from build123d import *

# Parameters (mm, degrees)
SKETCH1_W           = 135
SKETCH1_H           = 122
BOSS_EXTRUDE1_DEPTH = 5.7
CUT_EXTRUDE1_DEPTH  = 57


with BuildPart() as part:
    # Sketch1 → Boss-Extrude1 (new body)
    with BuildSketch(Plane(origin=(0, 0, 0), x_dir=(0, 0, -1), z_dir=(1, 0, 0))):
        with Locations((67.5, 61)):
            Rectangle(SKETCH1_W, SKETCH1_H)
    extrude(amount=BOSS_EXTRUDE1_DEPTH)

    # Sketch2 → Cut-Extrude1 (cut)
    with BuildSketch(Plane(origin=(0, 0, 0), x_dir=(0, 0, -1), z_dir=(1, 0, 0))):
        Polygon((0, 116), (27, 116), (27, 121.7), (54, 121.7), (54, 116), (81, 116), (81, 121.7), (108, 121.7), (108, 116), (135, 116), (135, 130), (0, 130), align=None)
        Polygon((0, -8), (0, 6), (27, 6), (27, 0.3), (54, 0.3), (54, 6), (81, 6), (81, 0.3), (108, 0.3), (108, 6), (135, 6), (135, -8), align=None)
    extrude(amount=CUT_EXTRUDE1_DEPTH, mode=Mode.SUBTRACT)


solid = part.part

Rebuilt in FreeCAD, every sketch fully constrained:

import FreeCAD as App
import Part
import Sketcher

V = App.Vector


def add_polygon(sketch, points):
    """Adds a closed chain of lines whose ends are joined by coincident constraints."""
    first, n = sketch.GeometryCount, len(points)
    for a, b in zip(points, points[1:] + points[:1]):
        sketch.addGeometry(Part.LineSegment(App.Vector(*a, 0), App.Vector(*b, 0)), False)
    for i in range(n):
        sketch.addConstraint(Sketcher.Constraint("Coincident", first + i, 2, first + (i + 1) % n, 1))

doc = App.newDocument("Part")
body = doc.addObject("PartDesign::Body", "Body")

# Sketch on YZ plane
sketch1 = doc.addObject("Sketcher::SketchObject", "Sketch")
body.addObject(sketch1)
sketch1.AttachmentSupport = (doc.YZ_Plane, [""])
sketch1.MapMode = "FlatFace"
add_polygon(sketch1, [(122, 0), (0, 0), (0, -135), (122, -135)])  # lines 0-3
sketch1.addConstraint([
    Sketcher.Constraint("Horizontal", 0),
    Sketcher.Constraint("Vertical", 1),
    Sketcher.Constraint("Horizontal", 2),
    Sketcher.Constraint("Vertical", 3),
    Sketcher.Constraint("Coincident", 0, 2, -1, 1),
    Sketcher.Constraint("DistanceX", 0, 2, 0, 1, 122.0),
    Sketcher.Constraint("DistanceY", 1, 2, 1, 1, 135.0),
])
pad1 = doc.addObject("PartDesign::Pad", "Pad")
body.addObject(pad1)
pad1.Profile = sketch1
pad1.Length = 5.7

# Sketch on YZ plane
sketch2 = doc.addObject("Sketcher::SketchObject", "Sketch001")
body.addObject(sketch2)
sketch2.AttachmentSupport = (doc.YZ_Plane, [""])
sketch2.MapMode = "FlatFace"
add_polygon(sketch2, [(116, 0), (116, -27), (121.7, -27), (121.7, -54), (116, -54), (116, -81), (121.7, -81), (121.7, -108), (116, -108), (116, -135), (130, -135), (130, 0)])  # lines 0-11
add_polygon(sketch2, [(6, 0), (-8, 0), (-8, -135), (6, -135), (6, -108), (0.3, -108), (0.3, -81), (6, -81), (6, -54), (0.3, -54), (0.3, -27), (6, -27)])  # lines 12-23
sketch2.addConstraint([
    Sketcher.Constraint("Vertical", 0),
    Sketcher.Constraint("Horizontal", 1),
    Sketcher.Constraint("Vertical", 2),
    Sketcher.Constraint("Horizontal", 3),
    Sketcher.Constraint("Vertical", 4),
    Sketcher.Constraint("Horizontal", 5),
    Sketcher.Constraint("Vertical", 6),
    Sketcher.Constraint("Horizontal", 7),
    Sketcher.Constraint("Vertical", 8),
    Sketcher.Constraint("Horizontal", 9),
    Sketcher.Constraint("Vertical", 10),
    Sketcher.Constraint("Horizontal", 11),
    Sketcher.Constraint("Horizontal", 12),
    Sketcher.Constraint("Vertical", 13),
    Sketcher.Constraint("Horizontal", 14),
    Sketcher.Constraint("Vertical", 15),
    Sketcher.Constraint("Horizontal", 16),
    Sketcher.Constraint("Vertical", 17),
    Sketcher.Constraint("Horizontal", 18),
    Sketcher.Constraint("Vertical", 19),
    Sketcher.Constraint("Horizontal", 20),
    Sketcher.Constraint("Vertical", 21),
    Sketcher.Constraint("Horizontal", 22),
    Sketcher.Constraint("Vertical", 23),
    Sketcher.Constraint("PointOnObject", 10, 2, -1),
    Sketcher.Constraint("PointOnObject", 12, 2, -1),
    Sketcher.Constraint("Horizontal", 9, 2, 13, 2),
    Sketcher.Constraint("Horizontal", 7, 2, 15, 2),
    Sketcher.Constraint("Horizontal", 5, 2, 17, 2),
    Sketcher.Constraint("Horizontal", 3, 2, 19, 2),
    Sketcher.Constraint("Horizontal", 1, 2, 21, 2),
    Sketcher.Constraint("Vertical", 0, 2, 3, 2),
    Sketcher.Constraint("Vertical", 2, 2, 5, 2),
    Sketcher.Constraint("Vertical", 4, 2, 7, 2),
    Sketcher.Constraint("Vertical", 15, 2, 18, 2),
    Sketcher.Constraint("Vertical", 17, 2, 20, 2),
    Sketcher.Constraint("Vertical", 19, 2, 22, 2),
    Sketcher.Constraint("Equal", 11, 12),
    Sketcher.Constraint("Equal", 7, 16),
    Sketcher.Constraint("Equal", 0, 2),
    Sketcher.Constraint("Equal", 2, 4),
    Sketcher.Constraint("Equal", 4, 6),
    Sketcher.Constraint("Equal", 6, 8),
    Sketcher.Constraint("DistanceX", 9, 1, 9, 2, 14.0),
    Sketcher.Constraint("DistanceY", 0, 2, 0, 1, 27.0),
    Sketcher.Constraint("DistanceX", 1, 1, 1, 2, 5.7),
    Sketcher.Constraint("DistanceX", -1, 1, 0, 2, 116.0),
    Sketcher.Constraint("DistanceX", 12, 2, -1, 1, 8.0),
])
pocket1 = doc.addObject("PartDesign::Pocket", "Pocket")
body.addObject(pocket1)
pocket1.Profile = sketch2
pocket1.Length = 57
pocket1.Reversed = True

doc.recompute()
